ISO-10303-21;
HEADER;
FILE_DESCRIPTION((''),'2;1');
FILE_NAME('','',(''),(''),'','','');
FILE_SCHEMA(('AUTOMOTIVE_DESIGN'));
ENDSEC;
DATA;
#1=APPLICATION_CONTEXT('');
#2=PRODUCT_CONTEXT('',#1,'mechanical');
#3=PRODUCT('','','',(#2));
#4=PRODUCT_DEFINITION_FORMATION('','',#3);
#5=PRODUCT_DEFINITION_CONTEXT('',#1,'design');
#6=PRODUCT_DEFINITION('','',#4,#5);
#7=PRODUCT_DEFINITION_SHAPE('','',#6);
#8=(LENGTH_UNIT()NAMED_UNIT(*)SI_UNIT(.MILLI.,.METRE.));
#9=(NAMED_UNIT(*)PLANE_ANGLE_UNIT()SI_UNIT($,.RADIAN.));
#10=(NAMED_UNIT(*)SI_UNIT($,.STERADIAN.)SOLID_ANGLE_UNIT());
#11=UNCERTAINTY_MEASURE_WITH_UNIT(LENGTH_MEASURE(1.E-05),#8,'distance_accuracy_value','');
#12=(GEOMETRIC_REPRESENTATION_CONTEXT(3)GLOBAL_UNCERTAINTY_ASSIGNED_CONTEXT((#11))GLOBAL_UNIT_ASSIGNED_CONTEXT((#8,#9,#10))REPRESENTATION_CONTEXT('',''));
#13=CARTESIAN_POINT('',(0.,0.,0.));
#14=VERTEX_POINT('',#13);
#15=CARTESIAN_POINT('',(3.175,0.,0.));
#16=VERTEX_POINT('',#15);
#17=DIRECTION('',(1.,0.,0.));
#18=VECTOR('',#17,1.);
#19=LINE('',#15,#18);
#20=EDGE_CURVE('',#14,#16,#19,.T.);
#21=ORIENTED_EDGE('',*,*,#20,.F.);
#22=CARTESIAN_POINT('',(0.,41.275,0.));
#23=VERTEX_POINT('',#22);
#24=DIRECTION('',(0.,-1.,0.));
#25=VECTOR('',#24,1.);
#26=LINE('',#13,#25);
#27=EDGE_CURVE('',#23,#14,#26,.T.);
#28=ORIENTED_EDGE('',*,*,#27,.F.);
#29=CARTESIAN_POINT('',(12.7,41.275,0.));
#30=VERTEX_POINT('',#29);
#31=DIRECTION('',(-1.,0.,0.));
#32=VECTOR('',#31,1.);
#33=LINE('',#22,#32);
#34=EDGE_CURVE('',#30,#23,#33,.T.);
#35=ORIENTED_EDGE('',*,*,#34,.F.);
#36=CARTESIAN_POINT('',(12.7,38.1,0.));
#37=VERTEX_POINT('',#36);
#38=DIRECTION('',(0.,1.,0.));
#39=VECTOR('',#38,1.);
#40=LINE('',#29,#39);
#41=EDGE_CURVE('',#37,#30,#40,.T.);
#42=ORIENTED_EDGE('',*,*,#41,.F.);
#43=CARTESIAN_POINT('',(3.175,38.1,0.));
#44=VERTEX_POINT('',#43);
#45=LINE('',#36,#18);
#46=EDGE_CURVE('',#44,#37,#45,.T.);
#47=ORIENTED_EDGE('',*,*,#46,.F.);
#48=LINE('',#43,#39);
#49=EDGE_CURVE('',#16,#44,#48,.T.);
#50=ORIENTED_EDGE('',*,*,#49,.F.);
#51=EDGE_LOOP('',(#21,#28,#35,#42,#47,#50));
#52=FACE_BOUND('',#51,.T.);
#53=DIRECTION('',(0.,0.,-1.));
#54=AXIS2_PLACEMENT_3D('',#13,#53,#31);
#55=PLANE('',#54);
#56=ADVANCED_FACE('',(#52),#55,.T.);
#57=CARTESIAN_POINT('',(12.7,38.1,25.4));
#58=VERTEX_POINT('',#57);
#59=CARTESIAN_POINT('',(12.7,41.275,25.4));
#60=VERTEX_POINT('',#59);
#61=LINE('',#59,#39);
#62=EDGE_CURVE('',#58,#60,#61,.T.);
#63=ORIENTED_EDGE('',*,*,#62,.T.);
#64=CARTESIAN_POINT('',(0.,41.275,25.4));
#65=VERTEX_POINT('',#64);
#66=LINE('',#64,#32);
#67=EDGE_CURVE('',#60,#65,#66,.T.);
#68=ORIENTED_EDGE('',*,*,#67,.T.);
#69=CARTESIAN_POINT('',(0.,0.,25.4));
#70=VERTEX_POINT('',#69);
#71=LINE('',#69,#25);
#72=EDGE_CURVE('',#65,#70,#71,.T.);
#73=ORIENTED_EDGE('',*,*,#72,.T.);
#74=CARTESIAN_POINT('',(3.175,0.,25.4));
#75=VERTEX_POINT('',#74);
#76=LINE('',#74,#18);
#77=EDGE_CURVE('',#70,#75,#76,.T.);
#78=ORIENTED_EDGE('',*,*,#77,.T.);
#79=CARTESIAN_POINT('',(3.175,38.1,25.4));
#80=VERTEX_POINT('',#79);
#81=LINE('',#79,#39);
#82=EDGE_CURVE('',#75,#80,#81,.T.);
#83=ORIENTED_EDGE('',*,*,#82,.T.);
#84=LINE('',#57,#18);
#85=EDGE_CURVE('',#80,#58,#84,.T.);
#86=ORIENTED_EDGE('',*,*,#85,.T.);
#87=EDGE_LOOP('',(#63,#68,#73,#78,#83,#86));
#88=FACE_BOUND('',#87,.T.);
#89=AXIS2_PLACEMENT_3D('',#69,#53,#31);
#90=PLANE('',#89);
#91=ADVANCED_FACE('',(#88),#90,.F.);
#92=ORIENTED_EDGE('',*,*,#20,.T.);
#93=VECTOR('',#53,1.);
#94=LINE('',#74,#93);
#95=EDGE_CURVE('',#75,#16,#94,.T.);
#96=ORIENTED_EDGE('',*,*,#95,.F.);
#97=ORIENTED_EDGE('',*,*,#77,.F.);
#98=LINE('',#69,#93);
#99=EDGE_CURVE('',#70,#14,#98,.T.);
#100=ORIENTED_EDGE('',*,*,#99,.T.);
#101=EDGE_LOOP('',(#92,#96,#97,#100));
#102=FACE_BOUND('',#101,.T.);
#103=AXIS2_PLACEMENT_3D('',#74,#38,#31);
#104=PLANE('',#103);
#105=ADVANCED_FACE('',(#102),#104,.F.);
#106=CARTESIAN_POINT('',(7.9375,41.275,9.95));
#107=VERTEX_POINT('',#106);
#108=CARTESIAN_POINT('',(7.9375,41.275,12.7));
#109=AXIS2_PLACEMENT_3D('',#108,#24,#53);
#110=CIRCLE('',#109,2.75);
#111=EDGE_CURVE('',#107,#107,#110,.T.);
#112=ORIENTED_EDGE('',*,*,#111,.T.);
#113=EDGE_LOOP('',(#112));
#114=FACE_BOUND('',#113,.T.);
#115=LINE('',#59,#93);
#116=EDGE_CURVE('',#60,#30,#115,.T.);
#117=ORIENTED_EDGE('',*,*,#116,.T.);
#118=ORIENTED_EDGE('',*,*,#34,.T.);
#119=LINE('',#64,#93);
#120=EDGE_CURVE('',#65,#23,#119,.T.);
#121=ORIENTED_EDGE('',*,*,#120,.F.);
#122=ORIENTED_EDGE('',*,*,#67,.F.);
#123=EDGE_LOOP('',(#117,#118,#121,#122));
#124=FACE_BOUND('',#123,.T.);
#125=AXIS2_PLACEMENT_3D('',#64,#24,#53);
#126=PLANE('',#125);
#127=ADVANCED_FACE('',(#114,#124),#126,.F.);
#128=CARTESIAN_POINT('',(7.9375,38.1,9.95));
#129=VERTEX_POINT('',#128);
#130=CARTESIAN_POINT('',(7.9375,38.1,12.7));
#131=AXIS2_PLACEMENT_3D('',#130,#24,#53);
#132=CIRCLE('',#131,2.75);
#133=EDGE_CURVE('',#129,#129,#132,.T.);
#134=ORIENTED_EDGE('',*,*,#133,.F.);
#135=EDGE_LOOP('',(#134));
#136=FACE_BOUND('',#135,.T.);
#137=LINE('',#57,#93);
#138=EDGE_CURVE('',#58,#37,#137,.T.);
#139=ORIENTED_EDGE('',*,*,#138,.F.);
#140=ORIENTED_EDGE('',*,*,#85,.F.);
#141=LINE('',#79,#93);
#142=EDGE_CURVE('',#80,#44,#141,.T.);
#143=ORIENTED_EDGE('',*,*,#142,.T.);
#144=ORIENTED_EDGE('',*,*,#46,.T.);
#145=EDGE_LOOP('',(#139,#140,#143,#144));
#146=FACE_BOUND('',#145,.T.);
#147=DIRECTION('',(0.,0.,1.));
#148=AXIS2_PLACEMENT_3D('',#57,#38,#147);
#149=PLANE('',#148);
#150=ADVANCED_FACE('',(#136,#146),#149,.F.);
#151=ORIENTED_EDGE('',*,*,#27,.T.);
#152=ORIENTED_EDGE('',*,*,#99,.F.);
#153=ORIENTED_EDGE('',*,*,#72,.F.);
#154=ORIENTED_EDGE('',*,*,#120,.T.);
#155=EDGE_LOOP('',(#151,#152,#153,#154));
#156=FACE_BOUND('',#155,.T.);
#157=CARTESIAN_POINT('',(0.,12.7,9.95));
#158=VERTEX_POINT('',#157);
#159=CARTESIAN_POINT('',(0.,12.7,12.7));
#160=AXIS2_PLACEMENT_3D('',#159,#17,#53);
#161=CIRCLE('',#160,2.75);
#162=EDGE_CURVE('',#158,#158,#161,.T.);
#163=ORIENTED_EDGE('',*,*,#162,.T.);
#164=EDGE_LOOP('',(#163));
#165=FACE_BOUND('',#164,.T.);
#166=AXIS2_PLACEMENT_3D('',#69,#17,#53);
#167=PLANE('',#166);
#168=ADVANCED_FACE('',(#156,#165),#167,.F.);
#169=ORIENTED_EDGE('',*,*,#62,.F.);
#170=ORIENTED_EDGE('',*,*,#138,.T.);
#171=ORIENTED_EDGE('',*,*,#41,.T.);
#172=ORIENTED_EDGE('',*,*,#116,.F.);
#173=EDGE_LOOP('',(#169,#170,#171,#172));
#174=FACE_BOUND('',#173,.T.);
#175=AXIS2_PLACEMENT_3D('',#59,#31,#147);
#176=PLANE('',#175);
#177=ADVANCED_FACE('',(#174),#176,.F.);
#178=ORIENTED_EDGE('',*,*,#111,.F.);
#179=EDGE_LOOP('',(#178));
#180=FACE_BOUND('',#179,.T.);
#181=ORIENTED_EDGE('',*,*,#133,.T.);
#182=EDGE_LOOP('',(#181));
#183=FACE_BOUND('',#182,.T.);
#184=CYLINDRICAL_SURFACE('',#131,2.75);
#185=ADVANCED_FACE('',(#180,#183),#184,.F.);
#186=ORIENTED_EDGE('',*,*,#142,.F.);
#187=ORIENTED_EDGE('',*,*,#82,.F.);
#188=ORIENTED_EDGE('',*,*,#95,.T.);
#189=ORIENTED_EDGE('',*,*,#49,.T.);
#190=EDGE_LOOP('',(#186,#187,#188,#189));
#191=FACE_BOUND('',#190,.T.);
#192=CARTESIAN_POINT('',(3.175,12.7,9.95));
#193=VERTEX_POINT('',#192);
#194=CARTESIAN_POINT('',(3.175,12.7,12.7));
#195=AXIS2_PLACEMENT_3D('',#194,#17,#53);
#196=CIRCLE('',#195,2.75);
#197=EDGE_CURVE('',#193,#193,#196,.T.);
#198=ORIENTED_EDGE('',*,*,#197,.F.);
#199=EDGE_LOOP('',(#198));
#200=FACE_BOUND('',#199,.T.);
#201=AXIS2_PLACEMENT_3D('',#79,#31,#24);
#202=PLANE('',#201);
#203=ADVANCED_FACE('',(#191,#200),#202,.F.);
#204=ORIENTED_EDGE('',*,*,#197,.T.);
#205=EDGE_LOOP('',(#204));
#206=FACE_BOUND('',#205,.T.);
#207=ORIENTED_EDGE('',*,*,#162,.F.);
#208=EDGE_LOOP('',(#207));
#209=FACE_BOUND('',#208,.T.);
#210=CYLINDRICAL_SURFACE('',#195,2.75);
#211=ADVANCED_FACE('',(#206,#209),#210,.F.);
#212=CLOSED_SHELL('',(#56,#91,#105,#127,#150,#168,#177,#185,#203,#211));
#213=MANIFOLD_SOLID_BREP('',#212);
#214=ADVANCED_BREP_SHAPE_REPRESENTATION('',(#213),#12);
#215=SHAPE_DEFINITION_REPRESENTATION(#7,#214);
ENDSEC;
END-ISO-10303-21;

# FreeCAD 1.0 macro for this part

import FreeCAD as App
import Part
import Sketcher
Q = App.Units.Quantity

doc = App.newDocument("Part")
body = doc.addObject("PartDesign::Body", "Body")

sketch1 = body.newObject("Sketcher::SketchObject", "Sketch")
sketch1.AttachmentSupport = (doc.getObject("XY_Plane"), [""])
sketch1.MapMode = "FlatFace"
sketch1.addGeometry(Part.LineSegment(App.Vector(0, 41.3, 0), App.Vector(0, 0, 0)), False)
sketch1.addGeometry(Part.LineSegment(App.Vector(0, 0, 0), App.Vector(3.2, 0, 0)), False)
sketch1.addGeometry(Part.LineSegment(App.Vector(3.2, 0, 0), App.Vector(3.2, 38.1, 0)), False)
sketch1.addGeometry(Part.LineSegment(App.Vector(3.2, 38.1, 0), App.Vector(12.7, 38.1, 0)), False)
sketch1.addGeometry(Part.LineSegment(App.Vector(12.7, 38.1, 0), App.Vector(12.7, 41.3, 0)), False)
sketch1.addGeometry(Part.LineSegment(App.Vector(12.7, 41.3, 0), App.Vector(0, 41.3, 0)), False)
sketch1.addConstraint(Sketcher.Constraint("Coincident", 0, 2, 1, 1))
sketch1.addConstraint(Sketcher.Constraint("Coincident", 1, 2, 2, 1))
sketch1.addConstraint(Sketcher.Constraint("Coincident", 2, 2, 3, 1))
sketch1.addConstraint(Sketcher.Constraint("Coincident", 3, 2, 4, 1))
sketch1.addConstraint(Sketcher.Constraint("Coincident", 4, 2, 5, 1))
sketch1.addConstraint(Sketcher.Constraint("Coincident", 5, 2, 0, 1))
sketch1.addConstraint(Sketcher.Constraint("Vertical", 0))
sketch1.addConstraint(Sketcher.Constraint("Horizontal", 1))
sketch1.addConstraint(Sketcher.Constraint("Vertical", 2))
sketch1.addConstraint(Sketcher.Constraint("Horizontal", 3))
sketch1.addConstraint(Sketcher.Constraint("Vertical", 4))
sketch1.addConstraint(Sketcher.Constraint("Horizontal", 5))
sketch1.addConstraint(Sketcher.Constraint("Coincident", 0, 2, -1, 1))
sketch1.addConstraint(Sketcher.Constraint("Equal", 1, 4))
sketch1.addConstraint(Sketcher.Constraint("DistanceX", 5, 2, 5, 1, Q("0.5 in")))
sketch1.addConstraint(Sketcher.Constraint("DistanceY", 2, 1, 2, 2, Q("1.5 in")))
sketch1.addConstraint(Sketcher.Constraint("DistanceX", 1, 1, 1, 2, Q("0.125 in")))
pad1 = body.newObject("PartDesign::Pad", "Pad")
pad1.Profile = sketch1
pad1.Length = Q("1 in")

sketch2 = body.newObject("Sketcher::SketchObject", "Sketch001")
sketch2.AttachmentSupport = (doc.getObject("XZ_Plane"), [""])
sketch2.MapMode = "FlatFace"
sketch2.AttachmentOffset = App.Placement(App.Vector(0, 0, -1.5 * 25.4), App.Rotation())
sketch2.addGeometry(Part.Circle(App.Vector(7.9, 12.7, 0), App.Vector(0, 0, 1), 2.8), False)
sketch2.addConstraint(Sketcher.Constraint("DistanceY", -1, 1, 0, 3, Q("0.5 in")))
sketch2.addConstraint(Sketcher.Constraint("Diameter", 0, Q("5.5 mm")))
sketch2.addConstraint(Sketcher.Constraint("DistanceX", -1, 1, 0, 3, Q("0.3125 in")))
doc.recompute()
hole = body.newObject("PartDesign::Hole", "Hole")
hole.Profile = sketch2
hole.ThreadType = "None"
hole.Diameter = 5.5
hole.DepthType = "ThroughAll"

sketch3 = body.newObject("Sketcher::SketchObject", "Sketch002")
sketch3.AttachmentSupport = (doc.getObject("YZ_Plane"), [""])
sketch3.MapMode = "FlatFace"
sketch3.AttachmentOffset = App.Placement(App.Vector(0, 0, 0.125 * 25.4), App.Rotation())
sketch3.addGeometry(Part.Circle(App.Vector(12.7, 12.7, 0), App.Vector(0, 0, 1), 2.8), False)
sketch3.addConstraint(Sketcher.Constraint("DistanceX", -1, 1, 0, 3, Q("0.5 in")))
sketch3.addConstraint(Sketcher.Constraint("DistanceY", -1, 1, 0, 3, Q("0.5 in")))
sketch3.addConstraint(Sketcher.Constraint("Diameter", 0, Q("5.5 mm")))
doc.recompute()
hole2 = body.newObject("PartDesign::Hole", "Hole001")
hole2.Profile = sketch3
hole2.ThreadType = "None"
hole2.Diameter = 5.5
hole2.DepthType = "ThroughAll"

doc.recompute()
